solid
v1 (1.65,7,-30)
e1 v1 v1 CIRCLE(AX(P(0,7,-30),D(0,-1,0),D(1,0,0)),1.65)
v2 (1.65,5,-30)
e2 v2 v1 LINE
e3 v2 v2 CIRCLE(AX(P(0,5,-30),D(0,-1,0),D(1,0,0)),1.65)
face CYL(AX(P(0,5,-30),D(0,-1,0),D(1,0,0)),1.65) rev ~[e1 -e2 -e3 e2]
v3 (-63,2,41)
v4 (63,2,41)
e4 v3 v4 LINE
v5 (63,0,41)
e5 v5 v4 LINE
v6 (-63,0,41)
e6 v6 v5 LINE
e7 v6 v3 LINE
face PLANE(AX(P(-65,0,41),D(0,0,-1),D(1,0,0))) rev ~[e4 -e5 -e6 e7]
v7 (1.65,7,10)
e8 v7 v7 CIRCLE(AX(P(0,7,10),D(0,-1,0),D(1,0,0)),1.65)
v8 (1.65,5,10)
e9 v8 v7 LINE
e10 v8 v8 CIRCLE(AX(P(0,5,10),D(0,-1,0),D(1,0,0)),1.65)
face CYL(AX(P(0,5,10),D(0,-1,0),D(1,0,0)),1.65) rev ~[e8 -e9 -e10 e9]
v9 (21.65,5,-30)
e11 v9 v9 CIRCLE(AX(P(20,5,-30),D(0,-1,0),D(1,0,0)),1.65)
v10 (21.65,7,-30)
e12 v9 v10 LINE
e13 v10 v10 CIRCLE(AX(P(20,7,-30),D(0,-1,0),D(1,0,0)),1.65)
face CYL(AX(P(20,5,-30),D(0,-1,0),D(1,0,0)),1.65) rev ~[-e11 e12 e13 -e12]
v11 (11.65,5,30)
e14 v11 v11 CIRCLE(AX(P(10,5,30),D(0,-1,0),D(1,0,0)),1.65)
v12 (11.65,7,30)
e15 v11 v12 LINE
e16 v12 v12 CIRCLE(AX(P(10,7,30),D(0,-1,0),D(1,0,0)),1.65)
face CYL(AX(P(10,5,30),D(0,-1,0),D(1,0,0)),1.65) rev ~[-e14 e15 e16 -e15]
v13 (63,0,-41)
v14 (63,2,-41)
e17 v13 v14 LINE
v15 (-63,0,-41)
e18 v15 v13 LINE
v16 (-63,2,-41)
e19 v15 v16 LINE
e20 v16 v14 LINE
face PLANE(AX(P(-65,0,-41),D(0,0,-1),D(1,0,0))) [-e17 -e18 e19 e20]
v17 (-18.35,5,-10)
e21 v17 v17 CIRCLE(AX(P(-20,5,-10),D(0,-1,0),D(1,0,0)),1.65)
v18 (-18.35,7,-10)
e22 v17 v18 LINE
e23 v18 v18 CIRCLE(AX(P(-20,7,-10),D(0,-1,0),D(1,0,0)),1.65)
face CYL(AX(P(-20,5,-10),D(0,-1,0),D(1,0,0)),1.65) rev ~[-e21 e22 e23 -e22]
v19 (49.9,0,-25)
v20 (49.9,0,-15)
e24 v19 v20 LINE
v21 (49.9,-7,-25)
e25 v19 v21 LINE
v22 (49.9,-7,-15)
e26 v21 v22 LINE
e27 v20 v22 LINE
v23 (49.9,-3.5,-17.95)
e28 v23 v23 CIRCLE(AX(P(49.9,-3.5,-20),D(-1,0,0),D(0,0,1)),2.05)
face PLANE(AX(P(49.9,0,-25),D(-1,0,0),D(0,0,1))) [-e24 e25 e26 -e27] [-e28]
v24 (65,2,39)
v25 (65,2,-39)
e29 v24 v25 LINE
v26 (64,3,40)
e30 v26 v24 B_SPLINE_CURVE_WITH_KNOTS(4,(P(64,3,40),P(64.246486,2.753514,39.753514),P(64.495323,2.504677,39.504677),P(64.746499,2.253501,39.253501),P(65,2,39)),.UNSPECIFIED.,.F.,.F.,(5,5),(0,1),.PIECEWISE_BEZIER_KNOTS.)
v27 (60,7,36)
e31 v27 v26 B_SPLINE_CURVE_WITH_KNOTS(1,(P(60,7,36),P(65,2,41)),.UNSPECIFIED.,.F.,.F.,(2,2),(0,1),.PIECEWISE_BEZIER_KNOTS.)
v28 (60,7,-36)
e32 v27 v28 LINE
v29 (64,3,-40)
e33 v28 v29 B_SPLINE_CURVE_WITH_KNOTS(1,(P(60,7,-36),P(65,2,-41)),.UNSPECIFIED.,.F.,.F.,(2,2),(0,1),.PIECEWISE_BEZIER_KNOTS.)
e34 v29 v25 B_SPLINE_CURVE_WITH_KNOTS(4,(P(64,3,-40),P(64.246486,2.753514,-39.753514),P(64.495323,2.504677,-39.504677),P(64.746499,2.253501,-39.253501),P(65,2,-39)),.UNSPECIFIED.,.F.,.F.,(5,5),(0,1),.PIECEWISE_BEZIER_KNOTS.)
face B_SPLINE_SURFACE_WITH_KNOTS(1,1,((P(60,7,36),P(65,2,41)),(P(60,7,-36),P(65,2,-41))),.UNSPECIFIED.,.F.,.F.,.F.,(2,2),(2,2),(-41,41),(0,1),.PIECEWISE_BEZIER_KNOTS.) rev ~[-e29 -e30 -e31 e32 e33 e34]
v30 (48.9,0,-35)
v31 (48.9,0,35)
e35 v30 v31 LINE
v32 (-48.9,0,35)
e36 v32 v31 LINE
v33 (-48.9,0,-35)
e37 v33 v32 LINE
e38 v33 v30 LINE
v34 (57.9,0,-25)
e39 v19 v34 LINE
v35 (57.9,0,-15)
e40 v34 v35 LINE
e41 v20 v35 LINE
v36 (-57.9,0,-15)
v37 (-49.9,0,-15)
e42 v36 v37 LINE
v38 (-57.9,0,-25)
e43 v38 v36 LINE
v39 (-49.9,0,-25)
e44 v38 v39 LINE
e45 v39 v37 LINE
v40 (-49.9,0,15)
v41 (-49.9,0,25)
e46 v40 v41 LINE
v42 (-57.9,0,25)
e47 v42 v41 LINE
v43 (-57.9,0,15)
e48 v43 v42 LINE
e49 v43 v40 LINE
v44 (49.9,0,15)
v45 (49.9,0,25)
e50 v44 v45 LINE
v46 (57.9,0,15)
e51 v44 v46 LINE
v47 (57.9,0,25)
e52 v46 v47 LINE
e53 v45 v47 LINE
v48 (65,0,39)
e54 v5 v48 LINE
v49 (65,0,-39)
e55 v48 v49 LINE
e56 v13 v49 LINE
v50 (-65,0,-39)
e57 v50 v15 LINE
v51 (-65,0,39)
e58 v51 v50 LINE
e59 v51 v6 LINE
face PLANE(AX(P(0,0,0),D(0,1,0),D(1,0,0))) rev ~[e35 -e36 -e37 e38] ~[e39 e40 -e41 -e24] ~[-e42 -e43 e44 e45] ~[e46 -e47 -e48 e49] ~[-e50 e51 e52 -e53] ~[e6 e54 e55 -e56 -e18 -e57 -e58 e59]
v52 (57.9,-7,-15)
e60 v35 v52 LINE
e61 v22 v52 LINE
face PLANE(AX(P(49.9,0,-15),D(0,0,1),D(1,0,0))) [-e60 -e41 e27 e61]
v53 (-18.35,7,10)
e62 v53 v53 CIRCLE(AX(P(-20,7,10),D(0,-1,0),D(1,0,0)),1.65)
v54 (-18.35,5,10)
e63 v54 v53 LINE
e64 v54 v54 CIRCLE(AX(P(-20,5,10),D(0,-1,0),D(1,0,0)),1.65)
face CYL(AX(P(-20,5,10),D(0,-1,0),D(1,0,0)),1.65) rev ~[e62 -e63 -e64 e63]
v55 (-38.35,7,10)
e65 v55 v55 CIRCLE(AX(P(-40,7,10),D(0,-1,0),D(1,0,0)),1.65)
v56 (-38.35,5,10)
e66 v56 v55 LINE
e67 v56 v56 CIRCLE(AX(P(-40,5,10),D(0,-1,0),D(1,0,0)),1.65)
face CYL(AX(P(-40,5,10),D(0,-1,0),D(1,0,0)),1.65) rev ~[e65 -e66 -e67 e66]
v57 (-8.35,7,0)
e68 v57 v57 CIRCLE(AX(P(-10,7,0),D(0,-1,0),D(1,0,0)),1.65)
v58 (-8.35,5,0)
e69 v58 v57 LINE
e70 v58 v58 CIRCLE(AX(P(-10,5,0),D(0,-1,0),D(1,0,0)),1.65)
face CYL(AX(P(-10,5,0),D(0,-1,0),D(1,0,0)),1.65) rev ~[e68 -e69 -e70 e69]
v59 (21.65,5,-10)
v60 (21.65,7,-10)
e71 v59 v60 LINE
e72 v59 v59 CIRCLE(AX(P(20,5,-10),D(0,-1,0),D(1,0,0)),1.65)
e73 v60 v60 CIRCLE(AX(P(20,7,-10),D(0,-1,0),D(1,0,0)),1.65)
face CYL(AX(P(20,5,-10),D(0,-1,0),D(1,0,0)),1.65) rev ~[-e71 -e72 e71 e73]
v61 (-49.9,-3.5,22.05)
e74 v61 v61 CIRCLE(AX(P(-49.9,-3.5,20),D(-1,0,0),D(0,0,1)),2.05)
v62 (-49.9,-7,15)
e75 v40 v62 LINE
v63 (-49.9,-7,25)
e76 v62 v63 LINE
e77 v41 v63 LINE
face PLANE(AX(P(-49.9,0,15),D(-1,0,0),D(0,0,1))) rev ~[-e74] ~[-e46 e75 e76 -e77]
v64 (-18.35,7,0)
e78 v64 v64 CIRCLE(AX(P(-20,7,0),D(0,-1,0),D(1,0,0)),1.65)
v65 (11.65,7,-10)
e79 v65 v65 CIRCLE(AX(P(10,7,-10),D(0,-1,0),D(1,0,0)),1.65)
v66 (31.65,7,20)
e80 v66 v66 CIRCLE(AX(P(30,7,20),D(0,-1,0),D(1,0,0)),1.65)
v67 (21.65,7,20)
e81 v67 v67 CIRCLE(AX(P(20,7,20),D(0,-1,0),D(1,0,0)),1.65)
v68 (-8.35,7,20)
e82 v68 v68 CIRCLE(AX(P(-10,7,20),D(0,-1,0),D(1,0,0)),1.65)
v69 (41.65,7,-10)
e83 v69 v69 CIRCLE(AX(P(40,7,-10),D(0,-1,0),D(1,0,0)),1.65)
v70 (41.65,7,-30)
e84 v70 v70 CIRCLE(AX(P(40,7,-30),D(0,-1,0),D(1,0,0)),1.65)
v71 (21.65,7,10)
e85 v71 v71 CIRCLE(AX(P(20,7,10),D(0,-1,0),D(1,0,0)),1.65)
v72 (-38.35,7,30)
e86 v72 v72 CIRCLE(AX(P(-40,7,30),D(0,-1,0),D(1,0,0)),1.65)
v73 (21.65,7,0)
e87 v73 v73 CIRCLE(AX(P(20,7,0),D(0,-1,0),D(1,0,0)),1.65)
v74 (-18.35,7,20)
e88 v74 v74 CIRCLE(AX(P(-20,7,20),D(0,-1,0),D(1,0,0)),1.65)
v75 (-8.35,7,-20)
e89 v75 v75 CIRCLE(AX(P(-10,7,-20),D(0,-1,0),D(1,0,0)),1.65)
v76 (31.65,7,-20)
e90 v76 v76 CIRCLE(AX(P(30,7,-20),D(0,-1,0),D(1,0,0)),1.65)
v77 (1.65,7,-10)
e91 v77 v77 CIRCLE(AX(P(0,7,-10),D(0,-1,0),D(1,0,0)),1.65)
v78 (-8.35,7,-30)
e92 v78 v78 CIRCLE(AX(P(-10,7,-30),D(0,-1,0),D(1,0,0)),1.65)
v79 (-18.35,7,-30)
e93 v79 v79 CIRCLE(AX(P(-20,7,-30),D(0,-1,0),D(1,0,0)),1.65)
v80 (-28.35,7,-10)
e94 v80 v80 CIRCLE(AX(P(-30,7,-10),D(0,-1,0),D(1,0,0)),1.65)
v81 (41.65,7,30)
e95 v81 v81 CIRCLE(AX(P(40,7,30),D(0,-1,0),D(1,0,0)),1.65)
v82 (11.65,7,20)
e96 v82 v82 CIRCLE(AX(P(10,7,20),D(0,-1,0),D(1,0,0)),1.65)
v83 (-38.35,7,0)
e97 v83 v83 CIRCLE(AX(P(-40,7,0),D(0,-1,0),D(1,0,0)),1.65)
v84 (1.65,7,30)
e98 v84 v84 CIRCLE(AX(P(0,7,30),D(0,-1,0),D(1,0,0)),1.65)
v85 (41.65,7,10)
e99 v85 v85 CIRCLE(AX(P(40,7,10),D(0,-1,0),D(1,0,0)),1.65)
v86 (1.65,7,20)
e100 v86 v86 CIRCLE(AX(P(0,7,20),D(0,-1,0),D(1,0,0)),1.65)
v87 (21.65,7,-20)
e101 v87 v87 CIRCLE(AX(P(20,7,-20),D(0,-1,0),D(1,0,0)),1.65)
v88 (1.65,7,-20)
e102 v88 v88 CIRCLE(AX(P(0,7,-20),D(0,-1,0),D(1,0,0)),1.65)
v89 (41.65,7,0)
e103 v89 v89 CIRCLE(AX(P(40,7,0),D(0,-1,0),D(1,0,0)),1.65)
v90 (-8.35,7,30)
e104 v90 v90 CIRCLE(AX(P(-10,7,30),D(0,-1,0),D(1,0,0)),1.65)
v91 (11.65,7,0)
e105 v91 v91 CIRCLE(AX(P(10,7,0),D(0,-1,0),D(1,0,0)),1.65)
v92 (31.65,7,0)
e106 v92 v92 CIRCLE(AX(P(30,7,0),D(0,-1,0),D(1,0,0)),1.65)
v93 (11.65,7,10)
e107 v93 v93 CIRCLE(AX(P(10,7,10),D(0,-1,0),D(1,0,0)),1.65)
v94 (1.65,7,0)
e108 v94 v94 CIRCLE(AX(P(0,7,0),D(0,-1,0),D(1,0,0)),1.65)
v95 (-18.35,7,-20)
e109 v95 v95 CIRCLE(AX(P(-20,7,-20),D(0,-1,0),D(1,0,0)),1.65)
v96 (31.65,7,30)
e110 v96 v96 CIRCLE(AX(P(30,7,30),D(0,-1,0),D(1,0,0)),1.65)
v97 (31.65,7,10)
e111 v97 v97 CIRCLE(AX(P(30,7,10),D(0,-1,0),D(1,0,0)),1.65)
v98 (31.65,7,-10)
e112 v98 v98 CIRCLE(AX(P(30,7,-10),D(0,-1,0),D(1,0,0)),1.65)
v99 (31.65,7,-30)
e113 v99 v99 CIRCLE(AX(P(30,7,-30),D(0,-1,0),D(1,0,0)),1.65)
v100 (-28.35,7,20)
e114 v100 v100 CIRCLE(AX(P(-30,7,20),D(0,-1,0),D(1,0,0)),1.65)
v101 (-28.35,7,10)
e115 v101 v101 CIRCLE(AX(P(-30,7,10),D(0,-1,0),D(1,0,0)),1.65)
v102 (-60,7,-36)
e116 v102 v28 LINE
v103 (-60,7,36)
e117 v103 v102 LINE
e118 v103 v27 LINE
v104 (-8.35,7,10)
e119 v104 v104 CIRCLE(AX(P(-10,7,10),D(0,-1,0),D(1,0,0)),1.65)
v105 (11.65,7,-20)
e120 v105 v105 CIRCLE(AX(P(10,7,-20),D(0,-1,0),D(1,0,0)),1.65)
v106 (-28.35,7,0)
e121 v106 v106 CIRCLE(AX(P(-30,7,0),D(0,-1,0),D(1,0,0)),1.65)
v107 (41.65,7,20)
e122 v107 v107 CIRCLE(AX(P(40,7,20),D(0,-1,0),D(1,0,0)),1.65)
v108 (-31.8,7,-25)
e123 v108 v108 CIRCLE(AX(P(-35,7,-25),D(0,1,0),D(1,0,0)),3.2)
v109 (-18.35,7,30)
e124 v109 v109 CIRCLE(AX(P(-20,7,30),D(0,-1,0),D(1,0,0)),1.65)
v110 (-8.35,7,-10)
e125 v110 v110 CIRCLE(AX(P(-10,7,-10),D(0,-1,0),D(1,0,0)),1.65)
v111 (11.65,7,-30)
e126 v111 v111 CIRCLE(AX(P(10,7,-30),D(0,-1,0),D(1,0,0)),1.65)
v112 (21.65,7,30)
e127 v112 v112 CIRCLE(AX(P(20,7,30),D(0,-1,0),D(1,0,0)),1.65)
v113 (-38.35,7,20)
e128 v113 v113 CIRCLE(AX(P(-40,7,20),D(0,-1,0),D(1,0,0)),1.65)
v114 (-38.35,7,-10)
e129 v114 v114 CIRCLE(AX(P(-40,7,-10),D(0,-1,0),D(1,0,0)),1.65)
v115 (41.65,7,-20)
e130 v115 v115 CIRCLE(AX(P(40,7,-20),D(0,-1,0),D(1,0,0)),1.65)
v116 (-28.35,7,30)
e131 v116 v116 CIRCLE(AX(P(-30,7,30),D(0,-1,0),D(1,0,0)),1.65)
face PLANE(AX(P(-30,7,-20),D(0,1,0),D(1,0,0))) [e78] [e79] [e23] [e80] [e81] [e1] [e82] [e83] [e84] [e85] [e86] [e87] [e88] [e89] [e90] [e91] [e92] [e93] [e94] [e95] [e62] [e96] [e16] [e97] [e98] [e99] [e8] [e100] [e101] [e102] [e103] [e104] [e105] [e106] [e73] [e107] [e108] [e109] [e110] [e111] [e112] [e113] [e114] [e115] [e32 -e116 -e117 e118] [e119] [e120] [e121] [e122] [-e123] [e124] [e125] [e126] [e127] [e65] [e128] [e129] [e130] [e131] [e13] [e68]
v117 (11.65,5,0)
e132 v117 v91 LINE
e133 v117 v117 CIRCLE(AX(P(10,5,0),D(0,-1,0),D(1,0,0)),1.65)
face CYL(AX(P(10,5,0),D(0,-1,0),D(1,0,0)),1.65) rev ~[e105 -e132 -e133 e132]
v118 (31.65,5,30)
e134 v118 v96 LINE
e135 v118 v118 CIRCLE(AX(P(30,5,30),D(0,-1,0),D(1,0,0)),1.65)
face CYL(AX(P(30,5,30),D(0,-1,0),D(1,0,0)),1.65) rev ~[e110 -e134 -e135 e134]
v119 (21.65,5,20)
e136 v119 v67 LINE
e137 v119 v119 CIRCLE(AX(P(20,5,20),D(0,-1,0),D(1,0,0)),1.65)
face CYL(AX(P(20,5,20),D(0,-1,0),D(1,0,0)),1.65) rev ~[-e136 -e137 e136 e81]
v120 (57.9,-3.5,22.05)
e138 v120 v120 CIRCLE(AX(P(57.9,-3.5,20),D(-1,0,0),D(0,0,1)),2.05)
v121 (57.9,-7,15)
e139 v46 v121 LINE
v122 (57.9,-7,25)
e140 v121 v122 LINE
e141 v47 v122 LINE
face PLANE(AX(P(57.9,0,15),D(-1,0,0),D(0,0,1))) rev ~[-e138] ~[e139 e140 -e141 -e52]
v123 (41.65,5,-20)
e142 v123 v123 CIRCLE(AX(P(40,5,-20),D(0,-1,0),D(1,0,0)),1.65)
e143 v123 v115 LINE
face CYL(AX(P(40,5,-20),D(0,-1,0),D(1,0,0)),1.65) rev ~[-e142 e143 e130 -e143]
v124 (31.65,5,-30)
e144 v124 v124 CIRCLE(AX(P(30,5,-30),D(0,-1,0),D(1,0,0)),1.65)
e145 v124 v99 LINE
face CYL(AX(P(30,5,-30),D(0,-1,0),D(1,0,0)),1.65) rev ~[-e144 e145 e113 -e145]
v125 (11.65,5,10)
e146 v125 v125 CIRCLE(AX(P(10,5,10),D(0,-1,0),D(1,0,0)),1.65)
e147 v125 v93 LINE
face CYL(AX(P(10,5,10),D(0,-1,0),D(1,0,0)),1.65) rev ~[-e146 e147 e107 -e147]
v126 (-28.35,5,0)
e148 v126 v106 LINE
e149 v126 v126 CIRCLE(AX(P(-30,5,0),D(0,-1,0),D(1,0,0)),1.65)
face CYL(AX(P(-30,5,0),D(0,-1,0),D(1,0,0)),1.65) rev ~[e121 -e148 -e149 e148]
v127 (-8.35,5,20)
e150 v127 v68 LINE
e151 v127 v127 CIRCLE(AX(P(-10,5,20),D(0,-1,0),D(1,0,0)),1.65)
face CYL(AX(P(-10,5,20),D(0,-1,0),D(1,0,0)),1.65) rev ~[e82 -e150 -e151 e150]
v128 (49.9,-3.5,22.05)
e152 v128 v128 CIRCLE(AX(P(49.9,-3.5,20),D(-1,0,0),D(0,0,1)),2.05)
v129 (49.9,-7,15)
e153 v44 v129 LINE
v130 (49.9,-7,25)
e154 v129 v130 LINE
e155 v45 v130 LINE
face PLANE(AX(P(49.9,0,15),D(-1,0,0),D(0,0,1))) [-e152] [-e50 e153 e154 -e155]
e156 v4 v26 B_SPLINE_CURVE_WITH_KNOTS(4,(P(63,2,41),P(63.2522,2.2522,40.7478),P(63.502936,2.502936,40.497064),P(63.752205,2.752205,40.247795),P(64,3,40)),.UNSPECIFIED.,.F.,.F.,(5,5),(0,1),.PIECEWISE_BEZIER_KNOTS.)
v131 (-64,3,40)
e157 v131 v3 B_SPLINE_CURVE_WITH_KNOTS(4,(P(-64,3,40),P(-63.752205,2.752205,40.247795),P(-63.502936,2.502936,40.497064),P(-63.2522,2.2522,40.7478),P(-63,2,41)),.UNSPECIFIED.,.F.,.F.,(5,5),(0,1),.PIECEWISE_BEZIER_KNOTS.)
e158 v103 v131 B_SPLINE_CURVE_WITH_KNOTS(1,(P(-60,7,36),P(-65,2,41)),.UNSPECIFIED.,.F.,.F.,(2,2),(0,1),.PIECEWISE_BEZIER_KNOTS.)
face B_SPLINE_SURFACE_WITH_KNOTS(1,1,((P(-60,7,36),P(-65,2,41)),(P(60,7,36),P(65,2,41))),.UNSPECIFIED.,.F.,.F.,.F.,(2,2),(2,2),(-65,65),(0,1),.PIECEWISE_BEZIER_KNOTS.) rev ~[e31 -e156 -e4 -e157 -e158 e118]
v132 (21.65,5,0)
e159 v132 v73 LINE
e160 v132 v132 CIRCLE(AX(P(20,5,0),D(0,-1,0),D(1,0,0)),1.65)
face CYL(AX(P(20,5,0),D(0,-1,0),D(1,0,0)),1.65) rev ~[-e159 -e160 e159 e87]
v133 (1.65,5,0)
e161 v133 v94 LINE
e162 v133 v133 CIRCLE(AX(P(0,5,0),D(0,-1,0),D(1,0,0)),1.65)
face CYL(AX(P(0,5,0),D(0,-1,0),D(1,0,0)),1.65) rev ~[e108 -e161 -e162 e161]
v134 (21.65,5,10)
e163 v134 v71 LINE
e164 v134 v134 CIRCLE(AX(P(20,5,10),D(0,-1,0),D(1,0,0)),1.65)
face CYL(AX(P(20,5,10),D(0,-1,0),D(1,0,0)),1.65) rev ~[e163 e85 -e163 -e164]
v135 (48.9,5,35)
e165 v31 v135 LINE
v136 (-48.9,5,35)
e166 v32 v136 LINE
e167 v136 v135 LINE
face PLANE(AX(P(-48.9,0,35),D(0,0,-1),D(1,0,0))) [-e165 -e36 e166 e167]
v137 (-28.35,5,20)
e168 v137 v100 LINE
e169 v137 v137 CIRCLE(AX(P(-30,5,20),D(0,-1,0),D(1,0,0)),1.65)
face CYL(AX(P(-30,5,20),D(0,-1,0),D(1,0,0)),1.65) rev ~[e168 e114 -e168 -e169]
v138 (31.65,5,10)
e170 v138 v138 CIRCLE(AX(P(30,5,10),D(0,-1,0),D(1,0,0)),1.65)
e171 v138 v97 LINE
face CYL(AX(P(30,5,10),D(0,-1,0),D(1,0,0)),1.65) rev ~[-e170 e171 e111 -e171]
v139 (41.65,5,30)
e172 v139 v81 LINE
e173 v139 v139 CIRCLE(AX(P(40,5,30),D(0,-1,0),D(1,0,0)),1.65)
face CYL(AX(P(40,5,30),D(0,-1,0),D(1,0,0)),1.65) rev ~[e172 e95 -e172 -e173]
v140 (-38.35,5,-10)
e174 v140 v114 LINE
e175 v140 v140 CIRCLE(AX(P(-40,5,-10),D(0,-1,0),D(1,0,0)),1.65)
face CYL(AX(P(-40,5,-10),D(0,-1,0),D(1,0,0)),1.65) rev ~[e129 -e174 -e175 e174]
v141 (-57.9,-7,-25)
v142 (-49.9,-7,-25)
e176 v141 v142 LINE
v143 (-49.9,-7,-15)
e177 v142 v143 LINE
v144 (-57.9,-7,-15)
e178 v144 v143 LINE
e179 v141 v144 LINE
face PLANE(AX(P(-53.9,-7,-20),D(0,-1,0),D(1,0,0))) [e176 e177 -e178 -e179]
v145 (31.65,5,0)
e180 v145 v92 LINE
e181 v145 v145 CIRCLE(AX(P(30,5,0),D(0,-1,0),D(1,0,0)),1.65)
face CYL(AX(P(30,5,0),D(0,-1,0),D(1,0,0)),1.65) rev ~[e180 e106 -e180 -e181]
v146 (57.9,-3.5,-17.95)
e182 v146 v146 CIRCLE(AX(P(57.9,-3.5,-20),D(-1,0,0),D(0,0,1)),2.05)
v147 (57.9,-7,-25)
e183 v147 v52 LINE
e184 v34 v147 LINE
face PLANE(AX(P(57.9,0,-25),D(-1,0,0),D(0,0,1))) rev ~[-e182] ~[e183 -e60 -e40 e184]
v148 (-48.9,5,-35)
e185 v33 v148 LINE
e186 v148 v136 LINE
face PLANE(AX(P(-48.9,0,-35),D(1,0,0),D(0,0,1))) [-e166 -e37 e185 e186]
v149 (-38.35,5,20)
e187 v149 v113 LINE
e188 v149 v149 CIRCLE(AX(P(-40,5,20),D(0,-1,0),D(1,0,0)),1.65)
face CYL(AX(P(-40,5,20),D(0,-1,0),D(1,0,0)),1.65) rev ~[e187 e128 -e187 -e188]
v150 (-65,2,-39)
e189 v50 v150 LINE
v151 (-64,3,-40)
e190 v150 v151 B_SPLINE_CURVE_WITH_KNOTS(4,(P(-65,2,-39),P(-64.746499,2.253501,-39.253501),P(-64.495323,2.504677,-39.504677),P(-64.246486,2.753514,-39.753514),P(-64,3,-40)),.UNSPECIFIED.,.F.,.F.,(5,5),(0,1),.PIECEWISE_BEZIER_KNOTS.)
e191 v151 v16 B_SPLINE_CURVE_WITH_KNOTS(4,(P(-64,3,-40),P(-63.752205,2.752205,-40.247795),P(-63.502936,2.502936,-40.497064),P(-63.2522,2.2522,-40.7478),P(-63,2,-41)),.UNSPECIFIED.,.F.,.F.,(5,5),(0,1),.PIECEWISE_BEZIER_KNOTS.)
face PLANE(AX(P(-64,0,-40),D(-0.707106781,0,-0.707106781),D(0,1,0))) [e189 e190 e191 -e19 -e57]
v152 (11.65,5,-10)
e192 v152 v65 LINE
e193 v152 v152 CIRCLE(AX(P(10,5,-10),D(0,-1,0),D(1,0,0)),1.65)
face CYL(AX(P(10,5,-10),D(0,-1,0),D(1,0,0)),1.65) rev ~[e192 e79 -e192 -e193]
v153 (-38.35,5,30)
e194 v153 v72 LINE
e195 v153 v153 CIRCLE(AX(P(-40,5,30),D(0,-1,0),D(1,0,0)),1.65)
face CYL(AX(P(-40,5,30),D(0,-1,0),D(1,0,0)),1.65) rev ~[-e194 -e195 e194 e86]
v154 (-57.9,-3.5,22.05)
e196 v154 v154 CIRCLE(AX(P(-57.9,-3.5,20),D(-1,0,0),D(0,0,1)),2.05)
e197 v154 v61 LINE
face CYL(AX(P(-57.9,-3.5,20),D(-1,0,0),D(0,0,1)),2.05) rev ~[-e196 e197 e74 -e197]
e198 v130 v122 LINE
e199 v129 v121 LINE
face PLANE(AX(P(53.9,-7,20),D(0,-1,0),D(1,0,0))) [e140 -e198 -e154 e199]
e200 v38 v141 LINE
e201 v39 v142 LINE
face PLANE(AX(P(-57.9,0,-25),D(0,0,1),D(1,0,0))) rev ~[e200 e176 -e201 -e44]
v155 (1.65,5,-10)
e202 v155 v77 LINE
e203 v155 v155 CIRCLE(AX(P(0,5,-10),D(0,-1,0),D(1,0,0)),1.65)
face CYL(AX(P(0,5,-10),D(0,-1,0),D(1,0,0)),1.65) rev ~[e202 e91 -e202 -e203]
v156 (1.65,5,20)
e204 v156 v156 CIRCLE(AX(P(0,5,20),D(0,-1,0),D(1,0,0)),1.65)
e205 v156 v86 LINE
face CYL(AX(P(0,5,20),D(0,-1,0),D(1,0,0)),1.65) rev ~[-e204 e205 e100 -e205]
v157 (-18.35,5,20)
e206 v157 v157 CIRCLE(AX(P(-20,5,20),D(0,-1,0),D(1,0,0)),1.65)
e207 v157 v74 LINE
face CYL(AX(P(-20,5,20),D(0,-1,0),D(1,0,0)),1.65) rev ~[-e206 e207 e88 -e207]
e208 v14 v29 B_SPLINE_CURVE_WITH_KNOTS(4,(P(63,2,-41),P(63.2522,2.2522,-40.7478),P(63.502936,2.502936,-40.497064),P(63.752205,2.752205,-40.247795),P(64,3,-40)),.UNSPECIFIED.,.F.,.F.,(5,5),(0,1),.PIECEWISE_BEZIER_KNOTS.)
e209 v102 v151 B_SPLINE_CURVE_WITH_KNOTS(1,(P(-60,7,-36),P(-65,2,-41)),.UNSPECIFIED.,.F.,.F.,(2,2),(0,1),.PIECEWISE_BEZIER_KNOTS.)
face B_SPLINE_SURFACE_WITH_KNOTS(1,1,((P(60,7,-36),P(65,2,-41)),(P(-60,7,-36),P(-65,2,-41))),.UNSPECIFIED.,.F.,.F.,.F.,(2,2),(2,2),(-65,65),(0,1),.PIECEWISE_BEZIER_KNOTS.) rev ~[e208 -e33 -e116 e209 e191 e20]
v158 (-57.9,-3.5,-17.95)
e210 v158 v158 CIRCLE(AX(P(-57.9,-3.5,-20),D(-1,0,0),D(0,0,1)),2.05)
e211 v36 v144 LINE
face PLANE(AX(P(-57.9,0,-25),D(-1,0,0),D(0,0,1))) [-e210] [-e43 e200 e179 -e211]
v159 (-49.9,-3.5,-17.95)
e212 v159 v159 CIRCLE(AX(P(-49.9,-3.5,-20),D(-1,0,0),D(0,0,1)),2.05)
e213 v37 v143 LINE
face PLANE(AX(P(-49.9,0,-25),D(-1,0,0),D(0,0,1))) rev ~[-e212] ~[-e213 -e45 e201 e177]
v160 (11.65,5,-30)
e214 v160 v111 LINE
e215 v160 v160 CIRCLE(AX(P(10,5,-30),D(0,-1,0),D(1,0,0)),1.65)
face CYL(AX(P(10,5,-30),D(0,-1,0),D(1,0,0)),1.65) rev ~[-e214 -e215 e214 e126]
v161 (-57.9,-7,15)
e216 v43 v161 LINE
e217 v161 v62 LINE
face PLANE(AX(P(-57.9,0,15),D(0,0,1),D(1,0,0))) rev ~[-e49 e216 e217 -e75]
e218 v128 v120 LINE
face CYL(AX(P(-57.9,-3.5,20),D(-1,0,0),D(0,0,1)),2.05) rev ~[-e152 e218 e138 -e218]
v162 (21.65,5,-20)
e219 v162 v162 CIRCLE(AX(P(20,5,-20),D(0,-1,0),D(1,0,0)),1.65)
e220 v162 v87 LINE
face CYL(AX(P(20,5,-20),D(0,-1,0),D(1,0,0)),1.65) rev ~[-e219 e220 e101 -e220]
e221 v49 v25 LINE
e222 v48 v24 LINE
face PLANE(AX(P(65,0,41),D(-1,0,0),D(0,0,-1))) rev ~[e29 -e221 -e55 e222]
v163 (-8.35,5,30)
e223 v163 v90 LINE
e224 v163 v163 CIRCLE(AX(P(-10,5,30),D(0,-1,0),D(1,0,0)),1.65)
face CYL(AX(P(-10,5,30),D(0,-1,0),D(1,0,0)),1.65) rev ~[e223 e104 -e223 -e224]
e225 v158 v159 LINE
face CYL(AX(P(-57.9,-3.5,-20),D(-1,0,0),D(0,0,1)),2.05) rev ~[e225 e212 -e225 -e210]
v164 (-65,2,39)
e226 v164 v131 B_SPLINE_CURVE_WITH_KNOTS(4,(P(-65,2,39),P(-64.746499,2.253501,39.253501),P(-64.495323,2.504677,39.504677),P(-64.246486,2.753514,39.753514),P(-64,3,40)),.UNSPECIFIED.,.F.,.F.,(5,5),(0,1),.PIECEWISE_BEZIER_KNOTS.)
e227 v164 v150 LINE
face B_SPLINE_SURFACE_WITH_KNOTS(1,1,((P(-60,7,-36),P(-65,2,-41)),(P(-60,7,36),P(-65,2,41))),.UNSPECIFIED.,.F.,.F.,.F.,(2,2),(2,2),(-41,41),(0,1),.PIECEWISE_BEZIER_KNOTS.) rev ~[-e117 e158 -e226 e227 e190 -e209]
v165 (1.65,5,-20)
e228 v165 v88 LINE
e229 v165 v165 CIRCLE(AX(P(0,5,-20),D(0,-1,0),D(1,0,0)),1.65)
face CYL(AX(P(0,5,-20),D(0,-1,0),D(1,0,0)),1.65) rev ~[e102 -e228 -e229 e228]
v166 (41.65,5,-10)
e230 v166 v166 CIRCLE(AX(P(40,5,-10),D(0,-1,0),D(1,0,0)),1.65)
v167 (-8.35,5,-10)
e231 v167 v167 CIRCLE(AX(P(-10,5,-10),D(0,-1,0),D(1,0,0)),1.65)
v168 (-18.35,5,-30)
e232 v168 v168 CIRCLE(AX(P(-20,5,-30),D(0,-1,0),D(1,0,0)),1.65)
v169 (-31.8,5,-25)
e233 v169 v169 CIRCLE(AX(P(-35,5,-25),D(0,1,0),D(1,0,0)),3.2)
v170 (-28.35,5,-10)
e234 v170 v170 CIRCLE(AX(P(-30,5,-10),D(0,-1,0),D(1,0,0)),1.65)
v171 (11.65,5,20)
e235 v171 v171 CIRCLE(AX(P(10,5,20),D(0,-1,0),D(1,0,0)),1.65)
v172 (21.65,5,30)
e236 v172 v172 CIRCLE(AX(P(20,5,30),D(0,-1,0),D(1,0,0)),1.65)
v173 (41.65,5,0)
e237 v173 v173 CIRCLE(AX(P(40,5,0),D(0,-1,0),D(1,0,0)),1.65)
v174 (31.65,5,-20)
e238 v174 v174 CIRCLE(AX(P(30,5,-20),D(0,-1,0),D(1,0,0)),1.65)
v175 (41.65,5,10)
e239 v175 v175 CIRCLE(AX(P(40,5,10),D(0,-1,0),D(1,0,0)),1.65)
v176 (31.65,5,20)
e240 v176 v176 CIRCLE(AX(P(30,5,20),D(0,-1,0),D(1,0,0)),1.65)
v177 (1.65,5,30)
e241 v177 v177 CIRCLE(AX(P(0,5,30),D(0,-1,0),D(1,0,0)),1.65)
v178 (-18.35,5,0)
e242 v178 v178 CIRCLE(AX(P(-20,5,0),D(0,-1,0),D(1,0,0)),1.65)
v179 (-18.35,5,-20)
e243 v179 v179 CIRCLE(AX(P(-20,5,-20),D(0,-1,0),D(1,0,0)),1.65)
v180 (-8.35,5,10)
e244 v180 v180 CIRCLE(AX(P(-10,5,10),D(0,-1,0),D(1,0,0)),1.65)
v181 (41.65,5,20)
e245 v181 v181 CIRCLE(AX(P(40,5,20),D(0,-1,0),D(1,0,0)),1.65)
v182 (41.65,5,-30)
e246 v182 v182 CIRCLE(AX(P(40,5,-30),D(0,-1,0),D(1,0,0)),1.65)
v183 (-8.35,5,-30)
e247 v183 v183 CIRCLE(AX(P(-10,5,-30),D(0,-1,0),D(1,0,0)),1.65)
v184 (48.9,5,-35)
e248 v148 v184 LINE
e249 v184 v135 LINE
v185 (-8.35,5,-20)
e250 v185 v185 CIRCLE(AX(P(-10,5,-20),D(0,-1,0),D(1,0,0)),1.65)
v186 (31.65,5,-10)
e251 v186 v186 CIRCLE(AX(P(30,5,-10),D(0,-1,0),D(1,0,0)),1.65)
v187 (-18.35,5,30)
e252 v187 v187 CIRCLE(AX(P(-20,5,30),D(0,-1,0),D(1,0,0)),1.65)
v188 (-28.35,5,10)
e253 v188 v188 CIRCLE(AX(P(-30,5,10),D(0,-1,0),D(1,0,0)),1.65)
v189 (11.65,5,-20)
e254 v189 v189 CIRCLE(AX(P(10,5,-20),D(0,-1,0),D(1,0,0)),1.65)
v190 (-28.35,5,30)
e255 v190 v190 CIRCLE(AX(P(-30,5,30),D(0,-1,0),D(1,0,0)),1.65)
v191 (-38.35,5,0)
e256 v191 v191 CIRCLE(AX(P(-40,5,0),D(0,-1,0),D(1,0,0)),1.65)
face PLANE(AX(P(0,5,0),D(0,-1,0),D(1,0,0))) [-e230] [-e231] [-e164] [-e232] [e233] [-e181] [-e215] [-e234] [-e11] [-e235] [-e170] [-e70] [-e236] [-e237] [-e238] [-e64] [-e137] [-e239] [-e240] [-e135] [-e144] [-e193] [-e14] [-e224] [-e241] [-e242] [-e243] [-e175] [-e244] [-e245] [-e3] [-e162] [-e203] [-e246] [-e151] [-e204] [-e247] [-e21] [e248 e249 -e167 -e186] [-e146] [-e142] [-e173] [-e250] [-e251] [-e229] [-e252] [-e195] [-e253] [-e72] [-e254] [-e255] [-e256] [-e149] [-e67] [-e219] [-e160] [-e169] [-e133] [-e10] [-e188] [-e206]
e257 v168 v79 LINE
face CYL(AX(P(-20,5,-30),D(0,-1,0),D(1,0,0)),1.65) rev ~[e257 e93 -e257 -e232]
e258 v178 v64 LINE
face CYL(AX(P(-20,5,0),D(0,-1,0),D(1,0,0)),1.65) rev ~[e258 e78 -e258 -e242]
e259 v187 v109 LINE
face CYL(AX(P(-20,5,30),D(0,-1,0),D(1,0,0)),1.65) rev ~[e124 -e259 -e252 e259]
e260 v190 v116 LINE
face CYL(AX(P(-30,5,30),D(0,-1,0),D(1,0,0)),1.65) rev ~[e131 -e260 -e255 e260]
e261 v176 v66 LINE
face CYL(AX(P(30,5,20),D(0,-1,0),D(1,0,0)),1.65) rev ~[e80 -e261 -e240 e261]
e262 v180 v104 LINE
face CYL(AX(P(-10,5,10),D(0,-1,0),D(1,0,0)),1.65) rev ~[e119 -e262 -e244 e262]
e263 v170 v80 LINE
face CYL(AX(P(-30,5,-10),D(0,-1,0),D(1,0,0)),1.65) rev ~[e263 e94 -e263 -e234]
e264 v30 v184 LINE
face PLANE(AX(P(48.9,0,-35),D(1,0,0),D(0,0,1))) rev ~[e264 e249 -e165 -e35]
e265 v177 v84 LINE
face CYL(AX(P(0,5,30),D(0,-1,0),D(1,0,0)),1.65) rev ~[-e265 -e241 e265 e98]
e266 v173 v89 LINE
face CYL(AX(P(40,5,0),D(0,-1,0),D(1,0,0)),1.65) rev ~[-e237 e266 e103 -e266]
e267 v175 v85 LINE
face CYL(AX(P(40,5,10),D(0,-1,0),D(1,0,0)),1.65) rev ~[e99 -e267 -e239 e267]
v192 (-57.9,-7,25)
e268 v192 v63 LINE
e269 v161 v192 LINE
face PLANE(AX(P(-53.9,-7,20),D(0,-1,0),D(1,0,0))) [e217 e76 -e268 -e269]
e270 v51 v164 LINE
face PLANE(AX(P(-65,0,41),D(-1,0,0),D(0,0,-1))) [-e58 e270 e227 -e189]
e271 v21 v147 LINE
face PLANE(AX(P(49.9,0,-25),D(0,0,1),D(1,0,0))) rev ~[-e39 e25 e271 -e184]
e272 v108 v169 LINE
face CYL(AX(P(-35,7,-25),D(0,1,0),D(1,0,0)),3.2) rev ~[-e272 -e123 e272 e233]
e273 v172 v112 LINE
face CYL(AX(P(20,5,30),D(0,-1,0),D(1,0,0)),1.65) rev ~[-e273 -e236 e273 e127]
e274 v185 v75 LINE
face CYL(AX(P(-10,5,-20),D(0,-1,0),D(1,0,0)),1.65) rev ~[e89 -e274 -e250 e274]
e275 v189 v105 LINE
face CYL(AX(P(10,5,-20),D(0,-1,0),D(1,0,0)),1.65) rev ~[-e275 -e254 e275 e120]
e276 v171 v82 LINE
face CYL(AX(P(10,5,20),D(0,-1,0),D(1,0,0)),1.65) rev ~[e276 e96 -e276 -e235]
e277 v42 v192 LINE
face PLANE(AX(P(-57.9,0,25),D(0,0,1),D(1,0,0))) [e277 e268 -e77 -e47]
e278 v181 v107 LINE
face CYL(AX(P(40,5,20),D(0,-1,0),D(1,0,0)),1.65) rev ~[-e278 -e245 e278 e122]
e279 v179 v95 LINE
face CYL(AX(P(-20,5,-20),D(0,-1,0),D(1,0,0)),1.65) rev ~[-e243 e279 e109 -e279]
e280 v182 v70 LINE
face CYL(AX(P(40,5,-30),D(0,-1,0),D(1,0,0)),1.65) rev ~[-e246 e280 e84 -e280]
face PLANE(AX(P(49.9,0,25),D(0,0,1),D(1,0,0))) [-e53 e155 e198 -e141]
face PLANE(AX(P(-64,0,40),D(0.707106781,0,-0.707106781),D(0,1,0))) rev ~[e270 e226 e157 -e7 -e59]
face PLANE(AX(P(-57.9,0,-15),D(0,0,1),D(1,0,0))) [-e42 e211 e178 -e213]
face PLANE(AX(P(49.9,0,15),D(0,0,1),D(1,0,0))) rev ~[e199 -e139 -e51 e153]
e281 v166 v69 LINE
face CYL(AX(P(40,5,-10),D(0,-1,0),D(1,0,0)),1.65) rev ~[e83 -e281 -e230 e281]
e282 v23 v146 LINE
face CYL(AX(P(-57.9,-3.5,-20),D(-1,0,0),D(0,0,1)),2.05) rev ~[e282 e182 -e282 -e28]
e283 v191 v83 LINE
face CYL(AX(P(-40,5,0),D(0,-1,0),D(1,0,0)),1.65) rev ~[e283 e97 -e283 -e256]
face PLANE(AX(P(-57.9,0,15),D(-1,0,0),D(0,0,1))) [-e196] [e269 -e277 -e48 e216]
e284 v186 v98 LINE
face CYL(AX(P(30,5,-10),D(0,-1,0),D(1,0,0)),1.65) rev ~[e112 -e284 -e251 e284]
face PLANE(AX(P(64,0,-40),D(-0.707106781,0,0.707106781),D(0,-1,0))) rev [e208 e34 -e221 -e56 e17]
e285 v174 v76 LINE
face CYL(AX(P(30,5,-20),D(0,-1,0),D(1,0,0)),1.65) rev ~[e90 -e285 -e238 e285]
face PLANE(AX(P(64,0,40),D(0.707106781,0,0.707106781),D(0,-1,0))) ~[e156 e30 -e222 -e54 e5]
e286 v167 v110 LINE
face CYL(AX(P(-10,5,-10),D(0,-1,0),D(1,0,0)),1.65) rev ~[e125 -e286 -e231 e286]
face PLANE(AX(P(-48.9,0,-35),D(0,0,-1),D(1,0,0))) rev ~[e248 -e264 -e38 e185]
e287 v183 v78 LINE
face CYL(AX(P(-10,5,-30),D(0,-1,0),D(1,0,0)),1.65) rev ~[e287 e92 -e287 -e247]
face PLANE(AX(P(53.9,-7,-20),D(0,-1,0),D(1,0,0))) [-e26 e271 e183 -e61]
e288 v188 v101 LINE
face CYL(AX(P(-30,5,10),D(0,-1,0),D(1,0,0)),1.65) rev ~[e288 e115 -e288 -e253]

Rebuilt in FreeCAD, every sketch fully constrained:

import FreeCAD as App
import Part
import Sketcher

V = App.Vector
Q = App.Units.Quantity


def edges_at(feature, points):
    """Names of the edges that pass closest to the given points."""
    edges = feature.Shape.Edges
    near = lambda p: min(range(len(edges)), key=lambda i: edges[i].distToShape(Part.Vertex(*p))[0])
    return sorted({f"Edge{near(p) + 1}" for p in points})


def add_polygon(sketch, points):
    """Adds a closed chain of lines whose ends are joined by coincident constraints."""
    first, n = sketch.GeometryCount, len(points)
    for a, b in zip(points, points[1:] + points[:1]):
        sketch.addGeometry(Part.LineSegment(App.Vector(*a, 0), App.Vector(*b, 0)), False)
    for i in range(n):
        sketch.addConstraint(Sketcher.Constraint("Coincident", first + i, 2, first + (i + 1) % n, 1))

doc = App.newDocument("Part")
body = doc.addObject("PartDesign::Body", "Body")

# Sketch on XZ plane
sketch1 = body.newObject("Sketcher::SketchObject", "Sketch")
sketch1.AttachmentSupport = (doc.getObject("XZ_Plane"), [""])
sketch1.MapMode = "FlatFace"
add_polygon(sketch1, [(-65, -41), (-65, 41), (65, 41), (65, -41)])  # lines 0-3
sketch1.addConstraint([
    Sketcher.Constraint("Vertical", 0),
    Sketcher.Constraint("Horizontal", 1),
    Sketcher.Constraint("Vertical", 2),
    Sketcher.Constraint("Horizontal", 3),
    Sketcher.Constraint("Symmetric", 0, 2, 2, 2, -1, 1),
    Sketcher.Constraint("DistanceX", 1, 1, 1, 2, Q("130 mm")),
    Sketcher.Constraint("DistanceY", 0, 1, 0, 2, Q("82 mm")),
])
pad1 = body.newObject("PartDesign::Pad", "Pad")
pad1.Profile = sketch1
pad1.Length = 2
pad1.Reversed = True

# Sketch on XZ plane
sketch2 = body.newObject("Sketcher::SketchObject", "Sketch001")
sketch2.AttachmentSupport = (doc.getObject("XZ_Plane"), [""])
sketch2.MapMode = "FlatFace"
sketch2.AttachmentOffset = App.Placement(V(0, 0, -7), App.Rotation())
add_polygon(sketch2, [(-60, -36), (-60, 36), (60, 36), (60, -36)])  # lines 0-3
sketch2.addConstraint([
    Sketcher.Constraint("Vertical", 0),
    Sketcher.Constraint("Horizontal", 1),
    Sketcher.Constraint("Vertical", 2),
    Sketcher.Constraint("Horizontal", 3),
    Sketcher.Constraint("Symmetric", 0, 2, 2, 2, -1, 1),
    Sketcher.Constraint("DistanceX", 1, 1, 1, 2, Q("120 mm")),
    Sketcher.Constraint("DistanceY", 0, 1, 0, 2, Q("72 mm")),
])

# Sketch on XZ plane
sketch3 = body.newObject("Sketcher::SketchObject", "Sketch002")
sketch3.AttachmentSupport = (doc.getObject("XZ_Plane"), [""])
sketch3.MapMode = "FlatFace"
sketch3.AttachmentOffset = App.Placement(V(0, 0, -2), App.Rotation())
add_polygon(sketch3, [(-65, -41), (-65, 41), (65, 41), (65, -41)])  # lines 0-3
sketch3.addConstraint([
    Sketcher.Constraint("Vertical", 0),
    Sketcher.Constraint("Horizontal", 1),
    Sketcher.Constraint("Vertical", 2),
    Sketcher.Constraint("Horizontal", 3),
    Sketcher.Constraint("Symmetric", 0, 2, 2, 2, -1, 1),
    Sketcher.Constraint("DistanceX", 1, 1, 1, 2, Q("130 mm")),
    Sketcher.Constraint("DistanceY", 0, 1, 0, 2, Q("82 mm")),
])

additiveloft = body.newObject("PartDesign::AdditiveLoft", "AdditiveLoft")
additiveloft.Profile = sketch2
additiveloft.Sections = [sketch3]
doc.recompute()

chamfer = body.newObject("PartDesign::Chamfer", "Chamfer")
chamfer.Base = (additiveloft, edges_at(additiveloft, [
    (65, 1, 41),
    (-65, 1, 41),
    (-65, 1, -41),
    (65, 1, -41),
]))
chamfer.Size = 2

# Sketch on XZ plane
sketch4 = body.newObject("Sketcher::SketchObject", "Sketch003")
sketch4.AttachmentSupport = (doc.getObject("XZ_Plane"), [""])
sketch4.MapMode = "FlatFace"
add_polygon(sketch4, [(-58, 25), (-58, 15), (-50, 15), (-50, 25)])  # lines 0-3
add_polygon(sketch4, [(-58, -15), (-58, -25), (-50, -25), (-50, -15)])  # lines 4-7
add_polygon(sketch4, [(50, -15), (50, -25), (58, -25), (58, -15)])  # lines 8-11
add_polygon(sketch4, [(50, 25), (50, 15), (58, 15), (58, 25)])  # lines 12-15
sketch4.addConstraint([
    Sketcher.Constraint("Vertical", 0),
    Sketcher.Constraint("Horizontal", 1),
    Sketcher.Constraint("Vertical", 2),
    Sketcher.Constraint("Horizontal", 3),
    Sketcher.Constraint("Vertical", 4),
    Sketcher.Constraint("Horizontal", 5),
    Sketcher.Constraint("Vertical", 6),
    Sketcher.Constraint("Horizontal", 7),
    Sketcher.Constraint("Vertical", 8),
    Sketcher.Constraint("Horizontal", 9),
    Sketcher.Constraint("Vertical", 10),
    Sketcher.Constraint("Horizontal", 11),
    Sketcher.Constraint("Vertical", 12),
    Sketcher.Constraint("Horizontal", 13),
    Sketcher.Constraint("Vertical", 14),
    Sketcher.Constraint("Horizontal", 15),
    Sketcher.Constraint("Symmetric", 2, 2, 8, 2, -1, 1),
    Sketcher.Constraint("Symmetric", 0, 2, 10, 2, -1, 1),
    Sketcher.Constraint("Symmetric", 6, 2, 12, 2, -1, 1),
    Sketcher.Constraint("Symmetric", 4, 2, 14, 2, -1, 1),
    Sketcher.Constraint("Symmetric", 5, 2, 8, 2, -2),
    Sketcher.Constraint("Symmetric", 7, 2, 10, 2, -2),
    Sketcher.Constraint("DistanceX", 1, 1, 1, 2, Q("8 mm")),
    Sketcher.Constraint("DistanceY", 0, 2, 0, 1, Q("10 mm")),
    Sketcher.Constraint("DistanceY", -1, 1, 0, 2, Q("15 mm")),
    Sketcher.Constraint("DistanceX", 0, 2, -1, 1, Q("57.9 mm")),
])
pad2 = body.newObject("PartDesign::Pad", "Pad001")
pad2.Profile = sketch4
pad2.Length = 7

# Sketch on YZ plane
sketch5 = body.newObject("Sketcher::SketchObject", "Sketch004")
sketch5.AttachmentSupport = (doc.getObject("YZ_Plane"), [""])
sketch5.MapMode = "FlatFace"
sketch5.AttachmentOffset = App.Placement(V(0, 0, -57.9), App.Rotation())
sketch5.addGeometry([
    Part.Circle(V(-3.5, -20, 0), V(0, 0, 1), 2),
    Part.Circle(V(-3.5, 20, 0), V(0, 0, 1), 2),
], False)
sketch5.addConstraint([
    Sketcher.Constraint("Equal", 0, 1),
    Sketcher.Constraint("Symmetric", 0, 3, 1, 3, -1),
    Sketcher.Constraint("Diameter", 0, Q("4.1 mm")),
    Sketcher.Constraint("DistanceY", 0, 3, -1, 1, Q("20 mm")),
    Sketcher.Constraint("DistanceX", 0, 3, -1, 1, Q("3.5 mm")),
])
pocket1 = body.newObject("PartDesign::Pocket", "Pocket")
pocket1.Profile = sketch5
pocket1.Type = "ThroughAll"
pocket1.Reversed = True

# Sketch on XZ plane
sketch6 = body.newObject("Sketcher::SketchObject", "Sketch005")
sketch6.AttachmentSupport = (doc.getObject("XZ_Plane"), [""])
sketch6.MapMode = "FlatFace"
add_polygon(sketch6, [(-49, 35), (-49, -35), (49, -35), (49, 35)])  # lines 0-3
sketch6.addConstraint([
    Sketcher.Constraint("Vertical", 0),
    Sketcher.Constraint("Horizontal", 1),
    Sketcher.Constraint("Vertical", 2),
    Sketcher.Constraint("Horizontal", 3),
    Sketcher.Constraint("Symmetric", 0, 2, 2, 2, -1, 1),
    Sketcher.Constraint("DistanceY", 0, 2, 0, 1, Q("70 mm")),
    Sketcher.Constraint("DistanceX", 1, 1, 1, 2, Q("97.8 mm")),
])
pocket2 = body.newObject("PartDesign::Pocket", "Pocket001")
pocket2.Profile = sketch6
pocket2.Length = 5

# Sketch on XZ plane
sketch7 = body.newObject("Sketcher::SketchObject", "Sketch006")
sketch7.AttachmentSupport = (doc.getObject("XZ_Plane"), [""])
sketch7.MapMode = "FlatFace"
sketch7.AttachmentOffset = App.Placement(V(0, 0, -5), App.Rotation())
sketch7.addGeometry([
    Part.Circle(V(0, 0, 0), V(0, 0, 1), 1.6),  # 0
    Part.Circle(V(10, 0, 0), V(0, 0, 1), 1.6),  # 1
    Part.Circle(V(20, 0, 0), V(0, 0, 1), 1.6),  # 2
    Part.Circle(V(30, 0, 0), V(0, 0, 1), 1.6),  # 3
    Part.Circle(V(40, 0, 0), V(0, 0, 1), 1.6),  # 4
    Part.Circle(V(10, 10, 0), V(0, 0, 1), 1.6),  # 5
    Part.Circle(V(20, 10, 0), V(0, 0, 1), 1.6),  # 6
    Part.Circle(V(30, 10, 0), V(0, 0, 1), 1.6),  # 7
    Part.Circle(V(40, 10, 0), V(0, 0, 1), 1.6),  # 8
    Part.Circle(V(10, 20, 0), V(0, 0, 1), 1.6),  # 9
    Part.Circle(V(20, 20, 0), V(0, 0, 1), 1.6),  # 10
    Part.Circle(V(30, 20, 0), V(0, 0, 1), 1.6),  # 11
    Part.Circle(V(40, 20, 0), V(0, 0, 1), 1.6),  # 12
    Part.Circle(V(10, 30, 0), V(0, 0, 1), 1.6),  # 13
    Part.Circle(V(20, 30, 0), V(0, 0, 1), 1.6),  # 14
    Part.Circle(V(30, 30, 0), V(0, 0, 1), 1.6),  # 15
    Part.Circle(V(40, 30, 0), V(0, 0, 1), 1.6),  # 16
    Part.Circle(V(0, 10, 0), V(0, 0, 1), 1.6),  # 17
    Part.Circle(V(0, 20, 0), V(0, 0, 1), 1.6),  # 18
    Part.Circle(V(0, 30, 0), V(0, 0, 1), 1.6),  # 19
    Part.Circle(V(-40, 30, 0), V(0, 0, 1), 1.6),  # 20
    Part.Circle(V(-30, 30, 0), V(0, 0, 1), 1.6),  # 21
    Part.Circle(V(-20, 30, 0), V(0, 0, 1), 1.6),  # 22
    Part.Circle(V(-10, 30, 0), V(0, 0, 1), 1.6),  # 23
    Part.Circle(V(-40, 20, 0), V(0, 0, 1), 1.6),  # 24
    Part.Circle(V(-30, 20, 0), V(0, 0, 1), 1.6),  # 25
    Part.Circle(V(-20, 20, 0), V(0, 0, 1), 1.6),  # 26
    Part.Circle(V(-10, 20, 0), V(0, 0, 1), 1.6),  # 27
    Part.Circle(V(-40, 10, 0), V(0, 0, 1), 1.6),  # 28
    Part.Circle(V(-30, 10, 0), V(0, 0, 1), 1.6),  # 29
    Part.Circle(V(-20, 10, 0), V(0, 0, 1), 1.6),  # 30
    Part.Circle(V(-10, 10, 0), V(0, 0, 1), 1.6),  # 31
    Part.Circle(V(-40, 0, 0), V(0, 0, 1), 1.6),  # 32
    Part.Circle(V(-30, 0, 0), V(0, 0, 1), 1.6),  # 33
    Part.Circle(V(-20, 0, 0), V(0, 0, 1), 1.6),  # 34
    Part.Circle(V(-10, 0, 0), V(0, 0, 1), 1.6),  # 35
    Part.Circle(V(-10, -10, 0), V(0, 0, 1), 1.6),  # 36
    Part.Circle(V(-20, -10, 0), V(0, 0, 1), 1.6),  # 37
    Part.Circle(V(-30, -10, 0), V(0, 0, 1), 1.6),  # 38
    Part.Circle(V(-40, -10, 0), V(0, 0, 1), 1.6),  # 39
    Part.Circle(V(-10, -20, 0), V(0, 0, 1), 1.6),  # 40
    Part.Circle(V(-20, -20, 0), V(0, 0, 1), 1.6),  # 41
    Part.Circle(V(-30, -20, 0), V(0, 0, 1), 1.6),  # 42
    Part.Circle(V(-40, -20, 0), V(0, 0, 1), 1.6),  # 43
    Part.Circle(V(-10, -30, 0), V(0, 0, 1), 1.6),  # 44
    Part.Circle(V(-20, -30, 0), V(0, 0, 1), 1.6),  # 45
    Part.Circle(V(-30, -30, 0), V(0, 0, 1), 1.6),  # 46
    Part.Circle(V(-40, -30, 0), V(0, 0, 1), 1.6),  # 47
    Part.Circle(V(0, -30, 0), V(0, 0, 1), 1.6),  # 48
    Part.Circle(V(0, -20, 0), V(0, 0, 1), 1.6),  # 49
    Part.Circle(V(0, -10, 0), V(0, 0, 1), 1.6),  # 50
    Part.Circle(V(40, -30, 0), V(0, 0, 1), 1.6),  # 51
    Part.Circle(V(30, -30, 0), V(0, 0, 1), 1.6),  # 52
    Part.Circle(V(20, -30, 0), V(0, 0, 1), 1.6),  # 53
    Part.Circle(V(10, -30, 0), V(0, 0, 1), 1.6),  # 54
    Part.Circle(V(40, -20, 0), V(0, 0, 1), 1.6),  # 55
    Part.Circle(V(30, -20, 0), V(0, 0, 1), 1.6),  # 56
    Part.Circle(V(20, -20, 0), V(0, 0, 1), 1.6),  # 57
    Part.Circle(V(10, -20, 0), V(0, 0, 1), 1.6),  # 58
    Part.Circle(V(40, -10, 0), V(0, 0, 1), 1.6),  # 59
    Part.Circle(V(30, -10, 0), V(0, 0, 1), 1.6),  # 60
    Part.Circle(V(20, -10, 0), V(0, 0, 1), 1.6),  # 61
    Part.Circle(V(10, -10, 0), V(0, 0, 1), 1.6),  # 62
], False)
sketch7.addConstraint([
    Sketcher.Constraint("Coincident", 0, 3, -1, 1),
    Sketcher.Constraint("Equal", 0, 1),
    Sketcher.Constraint("Equal", 1, 2),
    Sketcher.Constraint("Equal", 2, 3),
    Sketcher.Constraint("Equal", 3, 4),
    Sketcher.Constraint("Equal", 4, 5),
    Sketcher.Constraint("Equal", 5, 6),
    Sketcher.Constraint("Equal", 6, 7),
    Sketcher.Constraint("Equal", 7, 8),
    Sketcher.Constraint("Equal", 8, 9),
    Sketcher.Constraint("Equal", 9, 10),
    Sketcher.Constraint("Equal", 10, 11),
    Sketcher.Constraint("Equal", 11, 12),
    Sketcher.Constraint("Equal", 12, 13),
    Sketcher.Constraint("Equal", 13, 14),
    Sketcher.Constraint("Equal", 14, 15),
    Sketcher.Constraint("Equal", 15, 16),
    Sketcher.Constraint("Equal", 16, 17),
    Sketcher.Constraint("Equal", 17, 18),
    Sketcher.Constraint("Equal", 18, 19),
    Sketcher.Constraint("Equal", 19, 20),
    Sketcher.Constraint("Equal", 20, 21),
    Sketcher.Constraint("Equal", 21, 22),
    Sketcher.Constraint("Equal", 22, 23),
    Sketcher.Constraint("Equal", 23, 24),
    Sketcher.Constraint("Equal", 24, 25),
    Sketcher.Constraint("Equal", 25, 26),
    Sketcher.Constraint("Equal", 26, 27),
    Sketcher.Constraint("Equal", 27, 28),
    Sketcher.Constraint("Equal", 28, 29),
    Sketcher.Constraint("Equal", 29, 30),
    Sketcher.Constraint("Equal", 30, 31),
    Sketcher.Constraint("Equal", 31, 32),
    Sketcher.Constraint("Equal", 32, 33),
    Sketcher.Constraint("Equal", 33, 34),
    Sketcher.Constraint("Equal", 34, 35),
    Sketcher.Constraint("Equal", 35, 36),
    Sketcher.Constraint("Equal", 36, 37),
    Sketcher.Constraint("Equal", 37, 38),
    Sketcher.Constraint("Equal", 38, 39),
    Sketcher.Constraint("Equal", 39, 40),
    Sketcher.Constraint("Equal", 40, 41),
    Sketcher.Constraint("Equal", 41, 42),
    Sketcher.Constraint("Equal", 42, 43),
    Sketcher.Constraint("Equal", 43, 44),
    Sketcher.Constraint("Equal", 44, 45),
    Sketcher.Constraint("Equal", 45, 46),
    Sketcher.Constraint("Equal", 46, 47),
    Sketcher.Constraint("Equal", 47, 48),
    Sketcher.Constraint("Equal", 48, 49),
    Sketcher.Constraint("Equal", 49, 50),
    Sketcher.Constraint("Equal", 50, 51),
    Sketcher.Constraint("Equal", 51, 52),
    Sketcher.Constraint("Equal", 52, 53),
    Sketcher.Constraint("Equal", 53, 54),
    Sketcher.Constraint("Equal", 54, 55),
    Sketcher.Constraint("Equal", 55, 56),
    Sketcher.Constraint("Equal", 56, 57),
    Sketcher.Constraint("Equal", 57, 58),
    Sketcher.Constraint("Equal", 58, 59),
    Sketcher.Constraint("Equal", 59, 60),
    Sketcher.Constraint("Equal", 60, 61),
    Sketcher.Constraint("Equal", 61, 62),
    Sketcher.Constraint("Symmetric", 4, 3, 32, 3, -1, 1),
    Sketcher.Constraint("Symmetric", 3, 3, 33, 3, -1, 1),
    Sketcher.Constraint("Symmetric", 2, 3, 34, 3, -1, 1),
    Sketcher.Constraint("Symmetric", 1, 3, 35, 3, -1, 1),
    Sketcher.Constraint("Symmetric", 5, 3, 36, 3, -1, 1),
    Sketcher.Constraint("Symmetric", 6, 3, 37, 3, -1, 1),
    Sketcher.Constraint("Symmetric", 7, 3, 38, 3, -1, 1),
    Sketcher.Constraint("Symmetric", 8, 3, 39, 3, -1, 1),
    Sketcher.Constraint("Symmetric", 9, 3, 40, 3, -1, 1),
    Sketcher.Constraint("Symmetric", 10, 3, 41, 3, -1, 1),
    Sketcher.Constraint("Symmetric", 11, 3, 42, 3, -1, 1),
    Sketcher.Constraint("Symmetric", 12, 3, 43, 3, -1, 1),
    Sketcher.Constraint("Symmetric", 13, 3, 44, 3, -1, 1),
    Sketcher.Constraint("Symmetric", 14, 3, 45, 3, -1, 1),
    Sketcher.Constraint("Symmetric", 15, 3, 46, 3, -1, 1),
    Sketcher.Constraint("Symmetric", 16, 3, 47, 3, -1, 1),
    Sketcher.Constraint("Symmetric", 19, 3, 48, 3, -1, 1),
    Sketcher.Constraint("Symmetric", 18, 3, 49, 3, -1, 1),
    Sketcher.Constraint("Symmetric", 17, 3, 50, 3, -1, 1),
    Sketcher.Constraint("Symmetric", 20, 3, 51, 3, -1, 1),
    Sketcher.Constraint("Symmetric", 21, 3, 52, 3, -1, 1),
    Sketcher.Constraint("Symmetric", 22, 3, 53, 3, -1, 1),
    Sketcher.Constraint("Symmetric", 23, 3, 54, 3, -1, 1),
    Sketcher.Constraint("Symmetric", 24, 3, 55, 3, -1, 1),
    Sketcher.Constraint("Symmetric", 25, 3, 56, 3, -1, 1),
    Sketcher.Constraint("Symmetric", 26, 3, 57, 3, -1, 1),
    Sketcher.Constraint("Symmetric", 27, 3, 58, 3, -1, 1),
    Sketcher.Constraint("Symmetric", 28, 3, 59, 3, -1, 1),
    Sketcher.Constraint("Symmetric", 29, 3, 60, 3, -1, 1),
    Sketcher.Constraint("Symmetric", 30, 3, 61, 3, -1, 1),
    Sketcher.Constraint("Symmetric", 31, 3, 62, 3, -1, 1),
    Sketcher.Constraint("Symmetric", 16, 3, 20, 3, -2),
    Sketcher.Constraint("Symmetric", 15, 3, 21, 3, -2),
    Sketcher.Constraint("Symmetric", 14, 3, 22, 3, -2),
    Sketcher.Constraint("Symmetric", 13, 3, 23, 3, -2),
    Sketcher.Constraint("Symmetric", 12, 3, 24, 3, -2),
    Sketcher.Constraint("Symmetric", 11, 3, 25, 3, -2),
    Sketcher.Constraint("Symmetric", 10, 3, 26, 3, -2),
    Sketcher.Constraint("Symmetric", 9, 3, 27, 3, -2),
    Sketcher.Constraint("Symmetric", 8, 3, 28, 3, -2),
    Sketcher.Constraint("Symmetric", 7, 3, 29, 3, -2),
    Sketcher.Constraint("Symmetric", 6, 3, 30, 3, -2),
    Sketcher.Constraint("Symmetric", 5, 3, 31, 3, -2),
    Sketcher.Constraint("PointOnObject", 1, 3, -1),
    Sketcher.Constraint("PointOnObject", 2, 3, -1),
    Sketcher.Constraint("PointOnObject", 3, 3, -1),
    Sketcher.Constraint("PointOnObject", 4, 3, -1),
    Sketcher.Constraint("PointOnObject", 17, 3, -2),
    Sketcher.Constraint("PointOnObject", 18, 3, -2),
    Sketcher.Constraint("PointOnObject", 19, 3, -2),
    Sketcher.Constraint("Horizontal", 5, 3, 6, 3),
    Sketcher.Constraint("Horizontal", 6, 3, 7, 3),
    Sketcher.Constraint("Horizontal", 7, 3, 8, 3),
    Sketcher.Constraint("Horizontal", 9, 3, 10, 3),
    Sketcher.Constraint("Horizontal", 10, 3, 11, 3),
    Sketcher.Constraint("Horizontal", 11, 3, 12, 3),
    Sketcher.Constraint("Horizontal", 13, 3, 14, 3),
    Sketcher.Constraint("Horizontal", 14, 3, 15, 3),
    Sketcher.Constraint("Horizontal", 15, 3, 16, 3),
    Sketcher.Constraint("Horizontal", 8, 3, 17, 3),
    Sketcher.Constraint("Horizontal", 12, 3, 18, 3),
    Sketcher.Constraint("Horizontal", 16, 3, 19, 3),
    Sketcher.Constraint("Vertical", 1, 3, 5, 3),
    Sketcher.Constraint("Vertical", 2, 3, 6, 3),
    Sketcher.Constraint("Vertical", 3, 3, 7, 3),
    Sketcher.Constraint("Vertical", 4, 3, 8, 3),
    Sketcher.Constraint("Vertical", 5, 3, 9, 3),
    Sketcher.Constraint("Vertical", 6, 3, 10, 3),
    Sketcher.Constraint("Vertical", 7, 3, 11, 3),
    Sketcher.Constraint("Vertical", 8, 3, 12, 3),
    Sketcher.Constraint("Vertical", 9, 3, 13, 3),
    Sketcher.Constraint("Vertical", 10, 3, 14, 3),
    Sketcher.Constraint("Vertical", 11, 3, 15, 3),
    Sketcher.Constraint("Vertical", 12, 3, 16, 3),
    Sketcher.Constraint("Diameter", 0, Q("3.3 mm")),
    Sketcher.Constraint("DistanceX", -1, 1, 1, 3, Q("10 mm")),
    Sketcher.Constraint("DistanceX", -1, 1, 2, 3, Q("20 mm")),
    Sketcher.Constraint("DistanceX", -1, 1, 3, 3, Q("30 mm")),
    Sketcher.Constraint("DistanceX", -1, 1, 4, 3, Q("40 mm")),
    Sketcher.Constraint("DistanceY", -1, 1, 5, 3, Q("10 mm")),
    Sketcher.Constraint("DistanceY", -1, 1, 9, 3, Q("20 mm")),
    Sketcher.Constraint("DistanceY", -1, 1, 13, 3, Q("30 mm")),
])
pocket3 = body.newObject("PartDesign::Pocket", "Pocket002")
pocket3.Profile = sketch7
pocket3.Type = "ThroughAll"

# Sketch on XZ plane
sketch8 = body.newObject("Sketcher::SketchObject", "Sketch007")
sketch8.AttachmentSupport = (doc.getObject("XZ_Plane"), [""])
sketch8.MapMode = "FlatFace"
sketch8.AttachmentOffset = App.Placement(V(0, 0, -7), App.Rotation())
sketch8.addGeometry(Part.Circle(V(-35, -25, 0), V(0, 0, 1), 3.2), False)
sketch8.addConstraint([
    Sketcher.Constraint("Diameter", 0, Q("6.4 mm")),
    Sketcher.Constraint("DistanceX", 0, 3, -1, 1, Q("35 mm")),
    Sketcher.Constraint("DistanceY", 0, 3, -1, 1, Q("25 mm")),
])
pocket4 = body.newObject("PartDesign::Pocket", "Pocket003")
pocket4.Profile = sketch8
pocket4.Type = "ThroughAll"
pocket4.Reversed = True

# Sketch on XZ plane
sketch9 = body.newObject("Sketcher::SketchObject", "Sketch008")
sketch9.AttachmentSupport = (doc.getObject("XZ_Plane"), [""])
sketch9.MapMode = "FlatFace"
sketch9.AttachmentOffset = App.Placement(V(0, 0, -7), App.Rotation())
sketch9.addGeometry([
    Part.Circle(V(-30, -20, 0), V(0, 0, 1), 1.6),
    Part.Circle(V(-40, -20, 0), V(0, 0, 1), 1.6),
    Part.Circle(V(-40, -30, 0), V(0, 0, 1), 1.6),
    Part.Circle(V(-30, -30, 0), V(0, 0, 1), 1.6),
], False)
sketch9.addConstraint([
    Sketcher.Constraint("Equal", 0, 1),
    Sketcher.Constraint("Equal", 1, 2),
    Sketcher.Constraint("Equal", 2, 3),
    Sketcher.Constraint("Horizontal", 0, 3, 1, 3),
    Sketcher.Constraint("Horizontal", 2, 3, 3, 3),
    Sketcher.Constraint("Vertical", 1, 3, 2, 3),
    Sketcher.Constraint("Vertical", 0, 3, 3, 3),
    Sketcher.Constraint("Diameter", 0, Q("3.3 mm")),
    Sketcher.Constraint("DistanceX", 0, 3, -1, 1, Q("30 mm")),
    Sketcher.Constraint("DistanceY", 0, 3, -1, 1, Q("20 mm")),
    Sketcher.Constraint("DistanceX", 1, 3, -1, 1, Q("40 mm")),
    Sketcher.Constraint("DistanceY", 2, 3, -1, 1, Q("30 mm")),
])
pad3 = body.newObject("PartDesign::Pad", "Pad002")
pad3.Profile = sketch9
pad3.Length = 2

doc.recompute()
